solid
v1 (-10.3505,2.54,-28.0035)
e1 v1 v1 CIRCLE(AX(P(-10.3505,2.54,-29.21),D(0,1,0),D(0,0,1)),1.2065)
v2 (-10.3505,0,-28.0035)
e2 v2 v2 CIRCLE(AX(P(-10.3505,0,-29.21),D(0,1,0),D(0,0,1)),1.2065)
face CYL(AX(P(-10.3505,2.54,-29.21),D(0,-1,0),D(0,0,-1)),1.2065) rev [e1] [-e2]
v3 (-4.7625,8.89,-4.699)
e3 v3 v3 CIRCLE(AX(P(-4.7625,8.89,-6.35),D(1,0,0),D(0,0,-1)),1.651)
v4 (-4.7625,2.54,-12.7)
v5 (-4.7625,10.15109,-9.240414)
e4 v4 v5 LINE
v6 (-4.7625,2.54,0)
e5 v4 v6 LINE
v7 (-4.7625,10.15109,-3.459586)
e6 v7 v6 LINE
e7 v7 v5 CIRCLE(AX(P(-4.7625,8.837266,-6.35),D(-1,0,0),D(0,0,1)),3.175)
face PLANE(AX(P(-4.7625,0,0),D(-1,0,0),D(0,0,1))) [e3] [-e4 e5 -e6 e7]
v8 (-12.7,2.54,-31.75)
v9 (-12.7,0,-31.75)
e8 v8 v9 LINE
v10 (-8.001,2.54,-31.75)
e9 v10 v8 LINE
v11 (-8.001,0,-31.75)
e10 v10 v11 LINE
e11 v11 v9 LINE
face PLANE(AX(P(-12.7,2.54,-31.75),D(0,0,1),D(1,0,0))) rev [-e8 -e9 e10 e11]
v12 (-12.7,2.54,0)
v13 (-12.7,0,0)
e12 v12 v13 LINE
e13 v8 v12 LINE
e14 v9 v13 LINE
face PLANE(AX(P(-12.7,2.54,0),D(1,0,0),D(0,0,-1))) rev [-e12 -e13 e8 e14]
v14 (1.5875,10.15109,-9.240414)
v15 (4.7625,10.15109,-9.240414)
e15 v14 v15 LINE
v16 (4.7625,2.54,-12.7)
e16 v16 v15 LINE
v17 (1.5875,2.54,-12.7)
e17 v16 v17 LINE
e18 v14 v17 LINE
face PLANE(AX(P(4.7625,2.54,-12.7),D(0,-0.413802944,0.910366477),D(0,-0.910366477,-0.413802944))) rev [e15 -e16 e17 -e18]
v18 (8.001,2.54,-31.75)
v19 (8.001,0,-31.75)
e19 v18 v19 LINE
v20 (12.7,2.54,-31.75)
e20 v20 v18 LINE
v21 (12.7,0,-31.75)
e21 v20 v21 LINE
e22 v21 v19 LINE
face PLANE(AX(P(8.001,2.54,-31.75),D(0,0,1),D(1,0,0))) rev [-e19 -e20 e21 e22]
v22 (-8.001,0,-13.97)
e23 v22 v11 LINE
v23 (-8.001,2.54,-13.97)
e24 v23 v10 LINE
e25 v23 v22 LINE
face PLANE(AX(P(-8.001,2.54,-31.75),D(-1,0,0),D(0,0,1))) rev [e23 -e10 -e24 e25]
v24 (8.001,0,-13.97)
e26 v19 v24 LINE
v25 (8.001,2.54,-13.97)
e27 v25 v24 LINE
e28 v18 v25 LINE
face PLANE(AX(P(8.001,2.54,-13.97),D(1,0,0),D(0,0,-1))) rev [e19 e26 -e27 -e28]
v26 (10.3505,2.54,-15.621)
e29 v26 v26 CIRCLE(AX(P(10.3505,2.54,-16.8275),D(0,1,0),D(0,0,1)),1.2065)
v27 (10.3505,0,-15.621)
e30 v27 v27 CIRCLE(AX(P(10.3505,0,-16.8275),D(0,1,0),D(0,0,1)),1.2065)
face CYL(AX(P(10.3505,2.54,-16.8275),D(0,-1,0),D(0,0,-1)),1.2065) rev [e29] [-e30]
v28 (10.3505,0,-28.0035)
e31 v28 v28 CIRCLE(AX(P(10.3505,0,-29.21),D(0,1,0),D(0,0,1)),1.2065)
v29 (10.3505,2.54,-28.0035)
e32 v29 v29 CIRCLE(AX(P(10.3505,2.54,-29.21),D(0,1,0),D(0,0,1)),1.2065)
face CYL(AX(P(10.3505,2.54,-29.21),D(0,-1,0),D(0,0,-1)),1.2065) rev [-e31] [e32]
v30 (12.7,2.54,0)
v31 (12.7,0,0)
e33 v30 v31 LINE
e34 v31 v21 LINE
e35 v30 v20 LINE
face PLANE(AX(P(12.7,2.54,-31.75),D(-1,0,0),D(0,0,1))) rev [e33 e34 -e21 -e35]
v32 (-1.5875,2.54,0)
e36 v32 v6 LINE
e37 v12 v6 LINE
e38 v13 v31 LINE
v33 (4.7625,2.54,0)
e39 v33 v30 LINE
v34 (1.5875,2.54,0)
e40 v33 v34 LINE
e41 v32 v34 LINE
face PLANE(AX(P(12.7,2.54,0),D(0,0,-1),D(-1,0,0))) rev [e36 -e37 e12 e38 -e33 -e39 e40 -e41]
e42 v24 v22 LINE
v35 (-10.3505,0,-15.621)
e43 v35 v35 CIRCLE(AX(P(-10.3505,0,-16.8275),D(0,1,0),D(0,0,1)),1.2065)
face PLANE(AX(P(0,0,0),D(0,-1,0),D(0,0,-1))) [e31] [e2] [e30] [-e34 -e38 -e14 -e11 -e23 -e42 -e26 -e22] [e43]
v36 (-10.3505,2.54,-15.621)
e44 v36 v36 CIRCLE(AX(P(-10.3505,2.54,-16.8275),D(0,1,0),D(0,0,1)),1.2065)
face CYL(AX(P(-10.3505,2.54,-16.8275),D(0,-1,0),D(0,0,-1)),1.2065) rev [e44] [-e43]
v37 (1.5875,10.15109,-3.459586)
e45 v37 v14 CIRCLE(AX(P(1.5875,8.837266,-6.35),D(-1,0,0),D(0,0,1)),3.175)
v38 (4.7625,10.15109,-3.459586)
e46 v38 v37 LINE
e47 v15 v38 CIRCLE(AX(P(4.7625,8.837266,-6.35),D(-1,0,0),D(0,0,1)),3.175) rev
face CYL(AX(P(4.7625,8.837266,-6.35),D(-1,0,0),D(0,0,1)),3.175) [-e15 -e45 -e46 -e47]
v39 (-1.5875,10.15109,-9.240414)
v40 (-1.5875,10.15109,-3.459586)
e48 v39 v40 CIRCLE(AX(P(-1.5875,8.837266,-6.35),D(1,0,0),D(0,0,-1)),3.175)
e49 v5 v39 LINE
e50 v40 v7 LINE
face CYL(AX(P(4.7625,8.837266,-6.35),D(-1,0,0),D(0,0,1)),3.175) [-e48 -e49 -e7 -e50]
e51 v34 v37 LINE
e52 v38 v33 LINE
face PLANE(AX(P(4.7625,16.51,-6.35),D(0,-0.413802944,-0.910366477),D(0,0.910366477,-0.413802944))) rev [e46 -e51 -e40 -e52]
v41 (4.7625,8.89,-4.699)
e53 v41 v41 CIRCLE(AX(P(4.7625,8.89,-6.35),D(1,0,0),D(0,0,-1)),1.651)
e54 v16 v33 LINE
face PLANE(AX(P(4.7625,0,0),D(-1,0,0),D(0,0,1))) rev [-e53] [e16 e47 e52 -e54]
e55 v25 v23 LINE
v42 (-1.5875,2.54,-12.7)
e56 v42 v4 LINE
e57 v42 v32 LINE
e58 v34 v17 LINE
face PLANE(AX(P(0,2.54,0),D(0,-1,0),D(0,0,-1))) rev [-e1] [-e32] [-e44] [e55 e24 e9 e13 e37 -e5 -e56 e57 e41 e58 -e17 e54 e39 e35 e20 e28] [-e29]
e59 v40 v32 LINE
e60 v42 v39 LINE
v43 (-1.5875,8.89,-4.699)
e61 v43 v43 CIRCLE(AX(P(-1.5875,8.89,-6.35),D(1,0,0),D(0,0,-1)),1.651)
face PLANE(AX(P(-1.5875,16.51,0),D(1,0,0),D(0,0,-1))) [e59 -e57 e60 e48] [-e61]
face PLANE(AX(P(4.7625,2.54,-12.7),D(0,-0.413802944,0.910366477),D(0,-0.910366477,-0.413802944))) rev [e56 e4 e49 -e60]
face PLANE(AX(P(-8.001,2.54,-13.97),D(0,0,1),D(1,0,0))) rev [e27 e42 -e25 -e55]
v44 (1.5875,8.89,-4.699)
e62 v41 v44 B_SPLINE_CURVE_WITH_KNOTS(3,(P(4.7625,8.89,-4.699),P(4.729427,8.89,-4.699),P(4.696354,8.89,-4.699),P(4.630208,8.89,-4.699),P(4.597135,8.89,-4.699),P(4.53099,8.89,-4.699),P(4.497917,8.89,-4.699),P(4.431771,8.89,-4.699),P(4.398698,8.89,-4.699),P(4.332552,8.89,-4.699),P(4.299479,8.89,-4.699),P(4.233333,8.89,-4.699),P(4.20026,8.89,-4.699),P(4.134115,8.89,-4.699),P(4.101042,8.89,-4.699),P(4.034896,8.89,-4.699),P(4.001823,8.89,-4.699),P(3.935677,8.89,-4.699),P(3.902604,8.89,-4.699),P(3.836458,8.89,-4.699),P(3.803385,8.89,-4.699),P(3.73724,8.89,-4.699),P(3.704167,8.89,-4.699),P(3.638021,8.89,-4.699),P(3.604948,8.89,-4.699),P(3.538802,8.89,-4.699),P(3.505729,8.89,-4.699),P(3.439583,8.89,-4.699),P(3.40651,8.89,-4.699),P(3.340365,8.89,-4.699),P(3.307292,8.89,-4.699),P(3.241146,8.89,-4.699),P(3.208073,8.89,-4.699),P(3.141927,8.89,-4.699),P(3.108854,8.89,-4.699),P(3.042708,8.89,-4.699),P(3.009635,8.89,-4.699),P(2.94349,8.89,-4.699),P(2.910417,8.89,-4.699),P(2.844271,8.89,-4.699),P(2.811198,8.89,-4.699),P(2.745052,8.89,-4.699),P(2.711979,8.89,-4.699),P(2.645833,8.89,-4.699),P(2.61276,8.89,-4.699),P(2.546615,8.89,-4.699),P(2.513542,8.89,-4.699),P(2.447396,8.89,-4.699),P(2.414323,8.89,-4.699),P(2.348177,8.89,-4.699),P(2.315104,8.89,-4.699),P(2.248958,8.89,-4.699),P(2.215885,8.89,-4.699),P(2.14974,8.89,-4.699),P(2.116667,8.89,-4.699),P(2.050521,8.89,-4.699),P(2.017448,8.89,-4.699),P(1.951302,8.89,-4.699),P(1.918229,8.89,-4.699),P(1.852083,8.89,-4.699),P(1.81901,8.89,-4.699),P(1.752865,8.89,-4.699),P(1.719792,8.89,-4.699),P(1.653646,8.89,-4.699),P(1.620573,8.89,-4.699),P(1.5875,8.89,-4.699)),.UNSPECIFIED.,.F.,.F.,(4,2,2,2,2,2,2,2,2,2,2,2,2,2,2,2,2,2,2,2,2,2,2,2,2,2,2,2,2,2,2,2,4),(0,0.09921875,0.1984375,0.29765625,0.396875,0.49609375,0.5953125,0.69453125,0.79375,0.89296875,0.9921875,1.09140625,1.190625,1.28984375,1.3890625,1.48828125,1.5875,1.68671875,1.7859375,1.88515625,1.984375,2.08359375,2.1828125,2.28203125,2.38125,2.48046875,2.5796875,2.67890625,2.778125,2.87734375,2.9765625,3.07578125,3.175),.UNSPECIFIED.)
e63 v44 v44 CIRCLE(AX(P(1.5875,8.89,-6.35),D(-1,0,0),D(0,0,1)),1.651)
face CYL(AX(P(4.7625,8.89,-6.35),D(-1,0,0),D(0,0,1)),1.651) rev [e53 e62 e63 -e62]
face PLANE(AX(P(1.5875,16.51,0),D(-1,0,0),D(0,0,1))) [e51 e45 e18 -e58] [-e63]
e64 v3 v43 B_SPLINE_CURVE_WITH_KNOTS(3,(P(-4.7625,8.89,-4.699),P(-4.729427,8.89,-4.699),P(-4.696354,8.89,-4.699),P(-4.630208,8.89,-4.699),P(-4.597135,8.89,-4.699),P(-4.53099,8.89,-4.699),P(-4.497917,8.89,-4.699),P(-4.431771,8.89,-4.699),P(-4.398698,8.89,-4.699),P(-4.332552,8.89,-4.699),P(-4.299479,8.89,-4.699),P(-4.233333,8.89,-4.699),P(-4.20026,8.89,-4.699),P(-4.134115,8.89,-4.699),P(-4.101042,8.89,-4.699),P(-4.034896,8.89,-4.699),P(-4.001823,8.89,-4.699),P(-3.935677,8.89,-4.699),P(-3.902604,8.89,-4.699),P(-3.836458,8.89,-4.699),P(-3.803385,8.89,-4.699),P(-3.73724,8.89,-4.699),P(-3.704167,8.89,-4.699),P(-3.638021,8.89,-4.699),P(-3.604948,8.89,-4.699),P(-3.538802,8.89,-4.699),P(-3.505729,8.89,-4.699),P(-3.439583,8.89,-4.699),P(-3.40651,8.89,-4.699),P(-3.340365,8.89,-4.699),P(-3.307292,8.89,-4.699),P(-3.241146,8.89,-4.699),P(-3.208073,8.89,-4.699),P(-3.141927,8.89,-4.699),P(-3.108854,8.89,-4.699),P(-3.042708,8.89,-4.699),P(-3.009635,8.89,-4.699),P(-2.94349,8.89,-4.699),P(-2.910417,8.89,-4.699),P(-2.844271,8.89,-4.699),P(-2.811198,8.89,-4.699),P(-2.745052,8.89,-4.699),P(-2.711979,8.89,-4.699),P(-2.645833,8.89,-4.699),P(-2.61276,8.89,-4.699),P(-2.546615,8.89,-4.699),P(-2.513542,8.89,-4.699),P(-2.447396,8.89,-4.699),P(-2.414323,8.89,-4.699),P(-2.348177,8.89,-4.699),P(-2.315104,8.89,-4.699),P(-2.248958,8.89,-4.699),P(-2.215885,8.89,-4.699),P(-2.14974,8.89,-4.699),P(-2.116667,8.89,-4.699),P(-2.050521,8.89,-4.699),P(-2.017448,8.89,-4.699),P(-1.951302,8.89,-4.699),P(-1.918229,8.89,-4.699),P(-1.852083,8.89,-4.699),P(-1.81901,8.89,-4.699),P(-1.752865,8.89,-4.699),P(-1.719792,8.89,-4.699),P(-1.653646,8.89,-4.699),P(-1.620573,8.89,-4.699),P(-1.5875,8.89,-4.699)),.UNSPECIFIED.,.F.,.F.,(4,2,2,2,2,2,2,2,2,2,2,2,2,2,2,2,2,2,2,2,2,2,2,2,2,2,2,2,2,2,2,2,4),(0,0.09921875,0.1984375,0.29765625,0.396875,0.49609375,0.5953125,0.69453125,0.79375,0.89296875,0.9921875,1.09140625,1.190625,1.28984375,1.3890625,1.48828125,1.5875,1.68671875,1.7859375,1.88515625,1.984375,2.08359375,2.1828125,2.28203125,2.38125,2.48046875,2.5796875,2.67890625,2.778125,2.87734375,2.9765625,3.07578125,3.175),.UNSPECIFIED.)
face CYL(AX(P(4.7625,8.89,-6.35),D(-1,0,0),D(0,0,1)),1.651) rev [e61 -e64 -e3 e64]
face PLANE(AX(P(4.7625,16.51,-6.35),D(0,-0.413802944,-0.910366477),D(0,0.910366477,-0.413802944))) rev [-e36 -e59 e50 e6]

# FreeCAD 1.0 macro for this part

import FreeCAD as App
import Part
import Sketcher
from FreeCAD import Vector
Q = App.Units.Quantity


def edges_at(feature, points):
    """Names of the edges that pass closest to the given points."""
    edges = feature.Shape.Edges
    near = lambda p: min(range(len(edges)), key=lambda i: edges[i].distToShape(Part.Vertex(*p))[0])
    return sorted({f"Edge{near(p) + 1}" for p in points})


def add_polygon(sketch, points):
    """Adds a closed chain of lines whose ends are joined by coincident constraints."""
    first, n = sketch.GeometryCount, len(points)
    for a, b in zip(points, points[1:] + points[:1]):
        sketch.addGeometry(Part.LineSegment(App.Vector(*a, 0), App.Vector(*b, 0)), False)
    for i in range(n):
        sketch.addConstraint(Sketcher.Constraint("Coincident", first + i, 2, first + (i + 1) % n, 1))

doc = App.newDocument("Part")
body = doc.addObject("PartDesign::Body", "Body")

sketch1 = body.newObject("Sketcher::SketchObject", "Sketch")
sketch1.AttachmentSupport = (doc.getObject("XZ_Plane"), [""])
sketch1.MapMode = "FlatFace"
add_polygon(sketch1, [(-12.7, -31.75), (-12.7, 0), (12.7, 0), (12.7, -31.75), (8.001, -31.75), (8.001, -13.97), (-8.001, -13.97), (-8.001, -31.75)])
sketch1.addGeometry(Part.Circle(Vector(10.3505, -16.8275, 0), Vector(0, 0, 1), 1.2065), False)
sketch1.addGeometry(Part.Circle(Vector(-10.3505, -16.8275, 0), Vector(0, 0, 1), 1.2065), False)
sketch1.addGeometry(Part.Circle(Vector(10.3505, -29.21, 0), Vector(0, 0, 1), 1.2065), False)
sketch1.addGeometry(Part.Circle(Vector(-10.3505, -29.21, 0), Vector(0, 0, 1), 1.2065), False)
sketch1.addConstraint(Sketcher.Constraint("Vertical", 0))
sketch1.addConstraint(Sketcher.Constraint("Horizontal", 1))
sketch1.addConstraint(Sketcher.Constraint("Vertical", 2))
sketch1.addConstraint(Sketcher.Constraint("Horizontal", 3))
sketch1.addConstraint(Sketcher.Constraint("Vertical", 4))
sketch1.addConstraint(Sketcher.Constraint("Horizontal", 5))
sketch1.addConstraint(Sketcher.Constraint("Vertical", 6))
sketch1.addConstraint(Sketcher.Constraint("Horizontal", 7))
sketch1.addConstraint(Sketcher.Constraint("Equal", 8, 9))
sketch1.addConstraint(Sketcher.Constraint("Equal", 9, 10))
sketch1.addConstraint(Sketcher.Constraint("Equal", 10, 11))
sketch1.addConstraint(Sketcher.Constraint("Symmetric", 0, 2, 1, 2, -1, 1))
sketch1.addConstraint(Sketcher.Constraint("Symmetric", 8, 3, 9, 3, -2))
sketch1.addConstraint(Sketcher.Constraint("Symmetric", 10, 3, 11, 3, -2))
sketch1.addConstraint(Sketcher.Constraint("Symmetric", 3, 2, 6, 2, -2))
sketch1.addConstraint(Sketcher.Constraint("Vertical", 8, 3, 10, 3))
sketch1.addConstraint(Sketcher.Constraint("DistanceX", 1, 1, 1, 2, Q("1 in")))
sketch1.addConstraint(Sketcher.Constraint("Diameter", 8, Q("0.095 in")))
sketch1.addConstraint(Sketcher.Constraint("DistanceY", 4, 1, 4, 2, Q("0.7 in")))
sketch1.addConstraint(Sketcher.Constraint("DistanceX", 5, 2, 5, 1, Q("0.63 in")))
sketch1.addConstraint(Sketcher.Constraint("DistanceY", 0, 1, 0, 2, Q("1.25 in")))
sketch1.addConstraint(Sketcher.Constraint("DistanceY", 2, 2, 10, 3, Q("0.1 in")))
sketch1.addConstraint(Sketcher.Constraint("DistanceX", 9, 3, 8, 3, Q("0.815 in")))
sketch1.addConstraint(Sketcher.Constraint("DistanceY", 8, 3, -1, 1, Q("0.6625 in")))
pad1 = body.newObject("PartDesign::Pad", "Pad")
pad1.Profile = sketch1
pad1.Length = Q("0.1 in")
pad1.Reversed = True

sketch2 = body.newObject("Sketcher::SketchObject", "Sketch001")
sketch2.AttachmentSupport = (doc.getObject("YZ_Plane"), [""])
sketch2.MapMode = "FlatFace"
add_polygon(sketch2, [(2.54, -12.7), (16.51, -6.35), (2.54, 0)])
sketch2.addGeometry(Part.Circle(Vector(8.89, -6.35, 0), Vector(0, 0, 1), 1.651), False)
sketch2.addConstraint(Sketcher.Constraint("Vertical", 2))
sketch2.addConstraint(Sketcher.Constraint("PointOnObject", 1, 2, -1))
sketch2.addConstraint(Sketcher.Constraint("Horizontal", 3, 3, 0, 2))
sketch2.addConstraint(Sketcher.Constraint("Equal", 0, 1))
sketch2.addConstraint(Sketcher.Constraint("Diameter", 3, Q("0.13 in")))
sketch2.addConstraint(Sketcher.Constraint("DistanceY", 2, 2, 2, 1, Q("0.5 in")))
sketch2.addConstraint(Sketcher.Constraint("DistanceX", -1, 1, 1, 2, Q("0.1 in")))
sketch2.addConstraint(Sketcher.Constraint("DistanceX", 3, 3, 0, 2, Q("0.3 in")))
sketch2.addConstraint(Sketcher.Constraint("DistanceX", -1, 1, 3, 3, Q("0.35 in")))
pad2 = body.newObject("PartDesign::Pad", "Pad001")
pad2.Profile = sketch2
pad2.Length = Q("0.375 in")
pad2.Midplane = True

sketch3 = body.newObject("Sketcher::SketchObject", "Sketch002")
sketch3.AttachmentSupport = (doc.getObject("XZ_Plane"), [""])
sketch3.MapMode = "FlatFace"
sketch3.AttachmentOffset = App.Placement(Vector(0, 0, -0.1 * 25.4), App.Rotation())
add_polygon(sketch3, [(-1.5875, -12.7), (-1.5875, 0), (1.5875, 0), (1.5875, -12.7)])
sketch3.addConstraint(Sketcher.Constraint("Vertical", 0))
sketch3.addConstraint(Sketcher.Constraint("Horizontal", 1))
sketch3.addConstraint(Sketcher.Constraint("Vertical", 2))
sketch3.addConstraint(Sketcher.Constraint("Horizontal", 3))
sketch3.addConstraint(Sketcher.Constraint("Symmetric", 0, 2, 1, 2, -1, 1))
sketch3.addConstraint(Sketcher.Constraint("DistanceY", 0, 1, 0, 2, Q("0.5 in")))
sketch3.addConstraint(Sketcher.Constraint("DistanceX", 1, 1, 1, 2, Q("0.125 in")))
pocket1 = body.newObject("PartDesign::Pocket", "Pocket")
pocket1.Profile = sketch3
pocket1.Length = Q("0.55 in")
doc.recompute()

fillet = body.newObject("PartDesign::Fillet", "Fillet")
fillet.Base = (pocket1, edges_at(pocket1, [(3.175, 16.51, -6.35), (-3.175, 16.51, -6.35)]))
fillet.Radius = Q("0.125 in")

doc.recompute()
